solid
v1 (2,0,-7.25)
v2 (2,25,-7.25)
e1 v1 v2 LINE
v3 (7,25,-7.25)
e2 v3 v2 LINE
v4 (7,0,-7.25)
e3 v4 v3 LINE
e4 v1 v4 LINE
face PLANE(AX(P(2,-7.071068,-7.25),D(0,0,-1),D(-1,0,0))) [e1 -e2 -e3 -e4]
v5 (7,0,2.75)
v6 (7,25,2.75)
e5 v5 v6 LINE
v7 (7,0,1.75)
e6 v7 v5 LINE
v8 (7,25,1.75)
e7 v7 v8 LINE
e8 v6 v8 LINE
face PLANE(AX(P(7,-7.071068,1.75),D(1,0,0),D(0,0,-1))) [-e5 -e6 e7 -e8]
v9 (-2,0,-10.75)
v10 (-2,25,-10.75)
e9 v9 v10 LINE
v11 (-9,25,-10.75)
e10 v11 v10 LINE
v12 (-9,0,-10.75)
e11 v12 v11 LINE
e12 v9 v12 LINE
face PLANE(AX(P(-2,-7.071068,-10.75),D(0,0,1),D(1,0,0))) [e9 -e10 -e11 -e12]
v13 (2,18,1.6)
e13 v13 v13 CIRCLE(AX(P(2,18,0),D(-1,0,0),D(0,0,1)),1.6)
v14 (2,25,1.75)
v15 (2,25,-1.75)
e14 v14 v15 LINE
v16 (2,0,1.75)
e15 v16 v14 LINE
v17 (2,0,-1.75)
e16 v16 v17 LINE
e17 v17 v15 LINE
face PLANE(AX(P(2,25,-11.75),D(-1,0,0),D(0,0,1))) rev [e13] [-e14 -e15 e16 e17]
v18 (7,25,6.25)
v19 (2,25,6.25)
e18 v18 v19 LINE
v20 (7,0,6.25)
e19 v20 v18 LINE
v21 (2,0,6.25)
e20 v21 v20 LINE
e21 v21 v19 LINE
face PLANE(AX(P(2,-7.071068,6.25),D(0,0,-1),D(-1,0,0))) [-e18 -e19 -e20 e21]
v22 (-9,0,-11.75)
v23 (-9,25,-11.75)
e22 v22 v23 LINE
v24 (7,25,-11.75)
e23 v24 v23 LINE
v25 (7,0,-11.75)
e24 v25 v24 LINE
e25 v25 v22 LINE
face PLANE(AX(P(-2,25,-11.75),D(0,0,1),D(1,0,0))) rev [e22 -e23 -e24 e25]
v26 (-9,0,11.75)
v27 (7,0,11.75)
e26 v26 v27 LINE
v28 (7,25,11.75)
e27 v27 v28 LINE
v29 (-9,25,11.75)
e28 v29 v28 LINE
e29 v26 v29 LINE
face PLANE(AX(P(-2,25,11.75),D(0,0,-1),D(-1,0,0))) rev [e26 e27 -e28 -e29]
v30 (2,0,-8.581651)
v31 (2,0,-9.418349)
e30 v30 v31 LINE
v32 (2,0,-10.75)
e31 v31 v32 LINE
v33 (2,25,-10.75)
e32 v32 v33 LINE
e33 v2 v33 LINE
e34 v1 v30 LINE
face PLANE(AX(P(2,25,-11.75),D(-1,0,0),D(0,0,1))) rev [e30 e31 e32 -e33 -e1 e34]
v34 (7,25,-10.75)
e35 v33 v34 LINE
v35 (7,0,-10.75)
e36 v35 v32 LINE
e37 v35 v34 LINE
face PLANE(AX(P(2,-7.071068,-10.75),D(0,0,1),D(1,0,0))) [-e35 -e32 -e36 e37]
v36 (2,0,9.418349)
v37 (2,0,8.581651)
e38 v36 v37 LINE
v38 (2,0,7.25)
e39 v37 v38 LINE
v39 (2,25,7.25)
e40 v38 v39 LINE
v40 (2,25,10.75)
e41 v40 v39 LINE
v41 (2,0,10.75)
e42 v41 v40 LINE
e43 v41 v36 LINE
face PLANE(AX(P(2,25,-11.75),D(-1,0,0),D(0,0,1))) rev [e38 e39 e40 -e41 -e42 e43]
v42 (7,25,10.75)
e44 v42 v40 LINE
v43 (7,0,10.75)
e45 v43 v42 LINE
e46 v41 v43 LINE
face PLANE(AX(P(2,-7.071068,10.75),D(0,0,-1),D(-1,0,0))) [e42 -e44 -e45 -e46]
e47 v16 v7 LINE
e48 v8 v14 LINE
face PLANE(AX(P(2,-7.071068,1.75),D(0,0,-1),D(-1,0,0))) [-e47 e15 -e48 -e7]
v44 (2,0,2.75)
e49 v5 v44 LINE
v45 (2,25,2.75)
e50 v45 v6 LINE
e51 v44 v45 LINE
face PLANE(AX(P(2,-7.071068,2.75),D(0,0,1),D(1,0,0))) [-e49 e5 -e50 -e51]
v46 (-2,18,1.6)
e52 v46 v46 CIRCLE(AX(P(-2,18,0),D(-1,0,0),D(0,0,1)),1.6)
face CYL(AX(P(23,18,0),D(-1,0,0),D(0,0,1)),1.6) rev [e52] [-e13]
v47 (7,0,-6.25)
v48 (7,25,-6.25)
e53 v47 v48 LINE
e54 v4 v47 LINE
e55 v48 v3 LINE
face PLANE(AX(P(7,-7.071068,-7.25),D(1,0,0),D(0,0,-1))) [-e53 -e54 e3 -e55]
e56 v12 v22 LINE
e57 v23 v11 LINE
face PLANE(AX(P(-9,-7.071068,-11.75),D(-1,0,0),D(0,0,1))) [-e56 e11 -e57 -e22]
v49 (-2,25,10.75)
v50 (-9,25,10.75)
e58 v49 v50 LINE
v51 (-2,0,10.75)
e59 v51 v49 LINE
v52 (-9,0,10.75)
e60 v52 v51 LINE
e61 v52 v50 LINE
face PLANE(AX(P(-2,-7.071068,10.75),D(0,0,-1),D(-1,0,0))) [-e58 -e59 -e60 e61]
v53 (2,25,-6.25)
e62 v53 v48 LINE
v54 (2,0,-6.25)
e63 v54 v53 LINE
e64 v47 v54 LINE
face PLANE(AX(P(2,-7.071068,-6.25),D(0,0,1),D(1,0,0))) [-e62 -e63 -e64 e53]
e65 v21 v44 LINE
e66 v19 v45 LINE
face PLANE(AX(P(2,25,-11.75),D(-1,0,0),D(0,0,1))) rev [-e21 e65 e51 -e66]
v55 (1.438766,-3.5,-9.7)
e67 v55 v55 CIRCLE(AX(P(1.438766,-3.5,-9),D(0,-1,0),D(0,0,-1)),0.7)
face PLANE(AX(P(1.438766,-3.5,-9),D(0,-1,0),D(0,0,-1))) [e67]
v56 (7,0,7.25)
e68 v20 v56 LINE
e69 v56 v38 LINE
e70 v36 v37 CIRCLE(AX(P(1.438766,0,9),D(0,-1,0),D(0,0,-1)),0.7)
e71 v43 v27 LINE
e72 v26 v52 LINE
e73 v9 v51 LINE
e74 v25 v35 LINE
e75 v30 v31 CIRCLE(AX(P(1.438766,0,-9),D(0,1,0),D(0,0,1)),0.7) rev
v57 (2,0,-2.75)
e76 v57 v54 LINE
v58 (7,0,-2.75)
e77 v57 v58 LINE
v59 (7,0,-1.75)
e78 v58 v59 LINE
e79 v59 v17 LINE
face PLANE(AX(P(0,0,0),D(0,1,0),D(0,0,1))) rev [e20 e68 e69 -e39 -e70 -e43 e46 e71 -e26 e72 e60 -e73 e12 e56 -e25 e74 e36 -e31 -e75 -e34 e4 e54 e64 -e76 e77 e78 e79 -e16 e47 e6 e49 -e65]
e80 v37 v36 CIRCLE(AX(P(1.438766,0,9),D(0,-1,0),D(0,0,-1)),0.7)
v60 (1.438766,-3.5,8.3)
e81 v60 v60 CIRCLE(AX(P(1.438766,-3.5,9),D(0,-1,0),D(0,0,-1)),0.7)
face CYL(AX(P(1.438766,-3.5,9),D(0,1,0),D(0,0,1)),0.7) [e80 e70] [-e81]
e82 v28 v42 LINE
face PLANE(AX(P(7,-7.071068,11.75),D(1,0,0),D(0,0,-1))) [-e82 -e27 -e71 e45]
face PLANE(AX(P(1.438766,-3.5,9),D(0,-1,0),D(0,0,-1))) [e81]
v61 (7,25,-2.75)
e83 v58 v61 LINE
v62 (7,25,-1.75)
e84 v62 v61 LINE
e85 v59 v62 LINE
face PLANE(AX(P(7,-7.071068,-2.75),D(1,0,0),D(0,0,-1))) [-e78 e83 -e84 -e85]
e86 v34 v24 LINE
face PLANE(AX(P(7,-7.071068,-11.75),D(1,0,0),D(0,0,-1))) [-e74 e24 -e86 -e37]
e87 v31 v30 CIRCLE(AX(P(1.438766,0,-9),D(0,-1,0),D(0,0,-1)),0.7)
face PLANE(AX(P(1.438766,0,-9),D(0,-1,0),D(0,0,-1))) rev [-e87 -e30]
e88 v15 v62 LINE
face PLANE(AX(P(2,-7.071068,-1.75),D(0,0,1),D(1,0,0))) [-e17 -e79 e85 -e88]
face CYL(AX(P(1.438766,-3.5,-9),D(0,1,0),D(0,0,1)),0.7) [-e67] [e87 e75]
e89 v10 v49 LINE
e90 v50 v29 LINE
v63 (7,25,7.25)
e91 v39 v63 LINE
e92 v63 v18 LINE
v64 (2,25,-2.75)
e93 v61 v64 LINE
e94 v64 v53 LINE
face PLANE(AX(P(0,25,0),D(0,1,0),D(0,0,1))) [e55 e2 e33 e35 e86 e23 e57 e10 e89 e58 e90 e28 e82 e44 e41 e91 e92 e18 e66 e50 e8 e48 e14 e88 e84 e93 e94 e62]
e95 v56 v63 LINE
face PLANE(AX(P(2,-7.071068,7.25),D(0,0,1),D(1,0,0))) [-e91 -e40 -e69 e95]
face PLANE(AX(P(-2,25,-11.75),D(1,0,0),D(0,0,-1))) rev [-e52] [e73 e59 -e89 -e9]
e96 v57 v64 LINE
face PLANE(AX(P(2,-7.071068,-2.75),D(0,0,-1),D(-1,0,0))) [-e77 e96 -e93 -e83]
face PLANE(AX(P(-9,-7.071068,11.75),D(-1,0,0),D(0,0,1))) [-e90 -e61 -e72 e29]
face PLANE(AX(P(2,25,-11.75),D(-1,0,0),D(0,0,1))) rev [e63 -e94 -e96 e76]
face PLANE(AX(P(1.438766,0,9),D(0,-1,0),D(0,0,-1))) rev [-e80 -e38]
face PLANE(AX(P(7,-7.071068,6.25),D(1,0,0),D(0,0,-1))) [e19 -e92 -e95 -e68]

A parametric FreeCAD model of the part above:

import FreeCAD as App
import Part
import Sketcher
from FreeCAD import Vector
Q = App.Units.Quantity

doc = App.newDocument("Part")
body = doc.addObject("PartDesign::Body", "Body")

sketch1 = body.newObject("Sketcher::SketchObject", "Sketch")
sketch1.AttachmentSupport = (doc.getObject("XZ_Plane"), [""])
sketch1.MapMode = "FlatFace"
sketch1.addGeometry(Part.LineSegment(Vector(-2, -11.75, 0), Vector(-2, 11.75, 0)), False)
sketch1.addGeometry(Part.LineSegment(Vector(-2, 11.75, 0), Vector(2, 11.75, 0)), False)
sketch1.addGeometry(Part.LineSegment(Vector(2, 11.75, 0), Vector(2, -11.75, 0)), False)
sketch1.addGeometry(Part.LineSegment(Vector(2, -11.75, 0), Vector(-2, -11.75, 0)), False)
sketch1.addConstraint(Sketcher.Constraint("Coincident", 0, 2, 1, 1))
sketch1.addConstraint(Sketcher.Constraint("Coincident", 1, 2, 2, 1))
sketch1.addConstraint(Sketcher.Constraint("Coincident", 2, 2, 3, 1))
sketch1.addConstraint(Sketcher.Constraint("Coincident", 3, 2, 0, 1))
sketch1.addConstraint(Sketcher.Constraint("Vertical", 0))
sketch1.addConstraint(Sketcher.Constraint("Horizontal", 1))
sketch1.addConstraint(Sketcher.Constraint("Vertical", 2))
sketch1.addConstraint(Sketcher.Constraint("Horizontal", 3))
sketch1.addConstraint(Sketcher.Constraint("Symmetric", 0, 2, 2, 2, -1, 1))
sketch1.addConstraint(Sketcher.Constraint("DistanceX", 1, 1, 1, 2, Q("4 mm")))
sketch1.addConstraint(Sketcher.Constraint("DistanceY", 0, 1, 0, 2, Q("23.5 mm")))
pad1 = body.newObject("PartDesign::Pad", "Pad")
pad1.Profile = sketch1
pad1.Length = 25
pad1.Reversed = True

sketch2 = body.newObject("Sketcher::SketchObject", "Sketch001")
sketch2.AttachmentSupport = (doc.getObject("XZ_Plane"), [""])
sketch2.MapMode = "FlatFace"
sketch2.AttachmentOffset = App.Placement(Vector(0, 0, -25), App.Rotation())
sketch2.addGeometry(Part.LineSegment(Vector(2, 10.75, 0), Vector(2, 11.75, 0)), False)
sketch2.addGeometry(Part.LineSegment(Vector(2, 11.75, 0), Vector(7, 11.75, 0)), False)
sketch2.addGeometry(Part.LineSegment(Vector(7, 11.75, 0), Vector(7, 10.75, 0)), False)
sketch2.addGeometry(Part.LineSegment(Vector(7, 10.75, 0), Vector(2, 10.75, 0)), False)
sketch2.addGeometry(Part.LineSegment(Vector(-9, 10.75, 0), Vector(-9, 11.75, 0)), False)
sketch2.addGeometry(Part.LineSegment(Vector(-9, 11.75, 0), Vector(-2, 11.75, 0)), False)
sketch2.addGeometry(Part.LineSegment(Vector(-2, 11.75, 0), Vector(-2, 10.75, 0)), False)
sketch2.addGeometry(Part.LineSegment(Vector(-2, 10.75, 0), Vector(-9, 10.75, 0)), False)
sketch2.addGeometry(Part.LineSegment(Vector(-9, -11.75, 0), Vector(-9, -10.75, 0)), False)
sketch2.addGeometry(Part.LineSegment(Vector(-9, -10.75, 0), Vector(-2, -10.75, 0)), False)
sketch2.addGeometry(Part.LineSegment(Vector(-2, -10.75, 0), Vector(-2, -11.75, 0)), False)
sketch2.addGeometry(Part.LineSegment(Vector(-2, -11.75, 0), Vector(-9, -11.75, 0)), False)
sketch2.addGeometry(Part.LineSegment(Vector(2, -11.75, 0), Vector(2, -10.75, 0)), False)
sketch2.addGeometry(Part.LineSegment(Vector(2, -10.75, 0), Vector(7, -10.75, 0)), False)
sketch2.addGeometry(Part.LineSegment(Vector(7, -10.75, 0), Vector(7, -11.75, 0)), False)
sketch2.addGeometry(Part.LineSegment(Vector(7, -11.75, 0), Vector(2, -11.75, 0)), False)
sketch2.addGeometry(Part.LineSegment(Vector(2, -7.25, 0), Vector(2, -6.25, 0)), False)
sketch2.addGeometry(Part.LineSegment(Vector(2, -6.25, 0), Vector(7, -6.25, 0)), False)
sketch2.addGeometry(Part.LineSegment(Vector(7, -6.25, 0), Vector(7, -7.25, 0)), False)
sketch2.addGeometry(Part.LineSegment(Vector(7, -7.25, 0), Vector(2, -7.25, 0)), False)
sketch2.addGeometry(Part.LineSegment(Vector(2, -2.75, 0), Vector(2, -1.75, 0)), False)
sketch2.addGeometry(Part.LineSegment(Vector(2, -1.75, 0), Vector(7, -1.75, 0)), False)
sketch2.addGeometry(Part.LineSegment(Vector(7, -1.75, 0), Vector(7, -2.75, 0)), False)
sketch2.addGeometry(Part.LineSegment(Vector(7, -2.75, 0), Vector(2, -2.75, 0)), False)
sketch2.addGeometry(Part.LineSegment(Vector(2, 1.75, 0), Vector(2, 2.75, 0)), False)
sketch2.addGeometry(Part.LineSegment(Vector(2, 2.75, 0), Vector(7, 2.75, 0)), False)
sketch2.addGeometry(Part.LineSegment(Vector(7, 2.75, 0), Vector(7, 1.75, 0)), False)
sketch2.addGeometry(Part.LineSegment(Vector(7, 1.75, 0), Vector(2, 1.75, 0)), False)
sketch2.addGeometry(Part.LineSegment(Vector(2, 6.25, 0), Vector(2, 7.25, 0)), False)
sketch2.addGeometry(Part.LineSegment(Vector(2, 7.25, 0), Vector(7, 7.25, 0)), False)
sketch2.addGeometry(Part.LineSegment(Vector(7, 7.25, 0), Vector(7, 6.25, 0)), False)
sketch2.addGeometry(Part.LineSegment(Vector(7, 6.25, 0), Vector(2, 6.25, 0)), False)
sketch2.addConstraint(Sketcher.Constraint("Coincident", 0, 2, 1, 1))
sketch2.addConstraint(Sketcher.Constraint("Coincident", 1, 2, 2, 1))
sketch2.addConstraint(Sketcher.Constraint("Coincident", 2, 2, 3, 1))
sketch2.addConstraint(Sketcher.Constraint("Coincident", 3, 2, 0, 1))
sketch2.addConstraint(Sketcher.Constraint("Coincident", 4, 2, 5, 1))
sketch2.addConstraint(Sketcher.Constraint("Coincident", 5, 2, 6, 1))
sketch2.addConstraint(Sketcher.Constraint("Coincident", 6, 2, 7, 1))
sketch2.addConstraint(Sketcher.Constraint("Coincident", 7, 2, 4, 1))
sketch2.addConstraint(Sketcher.Constraint("Coincident", 8, 2, 9, 1))
sketch2.addConstraint(Sketcher.Constraint("Coincident", 9, 2, 10, 1))
sketch2.addConstraint(Sketcher.Constraint("Coincident", 10, 2, 11, 1))
sketch2.addConstraint(Sketcher.Constraint("Coincident", 11, 2, 8, 1))
sketch2.addConstraint(Sketcher.Constraint("Coincident", 12, 2, 13, 1))
sketch2.addConstraint(Sketcher.Constraint("Coincident", 13, 2, 14, 1))
sketch2.addConstraint(Sketcher.Constraint("Coincident", 14, 2, 15, 1))
sketch2.addConstraint(Sketcher.Constraint("Coincident", 15, 2, 12, 1))
sketch2.addConstraint(Sketcher.Constraint("Coincident", 16, 2, 17, 1))
sketch2.addConstraint(Sketcher.Constraint("Coincident", 17, 2, 18, 1))
sketch2.addConstraint(Sketcher.Constraint("Coincident", 18, 2, 19, 1))
sketch2.addConstraint(Sketcher.Constraint("Coincident", 19, 2, 16, 1))
sketch2.addConstraint(Sketcher.Constraint("Coincident", 20, 2, 21, 1))
sketch2.addConstraint(Sketcher.Constraint("Coincident", 21, 2, 22, 1))
sketch2.addConstraint(Sketcher.Constraint("Coincident", 22, 2, 23, 1))
sketch2.addConstraint(Sketcher.Constraint("Coincident", 23, 2, 20, 1))
sketch2.addConstraint(Sketcher.Constraint("Coincident", 24, 2, 25, 1))
sketch2.addConstraint(Sketcher.Constraint("Coincident", 25, 2, 26, 1))
sketch2.addConstraint(Sketcher.Constraint("Coincident", 26, 2, 27, 1))
sketch2.addConstraint(Sketcher.Constraint("Coincident", 27, 2, 24, 1))
sketch2.addConstraint(Sketcher.Constraint("Coincident", 28, 2, 29, 1))
sketch2.addConstraint(Sketcher.Constraint("Coincident", 29, 2, 30, 1))
sketch2.addConstraint(Sketcher.Constraint("Coincident", 30, 2, 31, 1))
sketch2.addConstraint(Sketcher.Constraint("Coincident", 31, 2, 28, 1))
sketch2.addConstraint(Sketcher.Constraint("Vertical", 0))
sketch2.addConstraint(Sketcher.Constraint("Horizontal", 1))
sketch2.addConstraint(Sketcher.Constraint("Vertical", 2))
sketch2.addConstraint(Sketcher.Constraint("Horizontal", 3))
sketch2.addConstraint(Sketcher.Constraint("Vertical", 4))
sketch2.addConstraint(Sketcher.Constraint("Horizontal", 5))
sketch2.addConstraint(Sketcher.Constraint("Vertical", 6))
sketch2.addConstraint(Sketcher.Constraint("Horizontal", 7))
sketch2.addConstraint(Sketcher.Constraint("Vertical", 8))
sketch2.addConstraint(Sketcher.Constraint("Horizontal", 9))
sketch2.addConstraint(Sketcher.Constraint("Vertical", 10))
sketch2.addConstraint(Sketcher.Constraint("Horizontal", 11))
sketch2.addConstraint(Sketcher.Constraint("Vertical", 12))
sketch2.addConstraint(Sketcher.Constraint("Horizontal", 13))
sketch2.addConstraint(Sketcher.Constraint("Vertical", 14))
sketch2.addConstraint(Sketcher.Constraint("Horizontal", 15))
sketch2.addConstraint(Sketcher.Constraint("Vertical", 16))
sketch2.addConstraint(Sketcher.Constraint("Horizontal", 17))
sketch2.addConstraint(Sketcher.Constraint("Vertical", 18))
sketch2.addConstraint(Sketcher.Constraint("Horizontal", 19))
sketch2.addConstraint(Sketcher.Constraint("Vertical", 20))
sketch2.addConstraint(Sketcher.Constraint("Horizontal", 21))
sketch2.addConstraint(Sketcher.Constraint("Vertical", 22))
sketch2.addConstraint(Sketcher.Constraint("Horizontal", 23))
sketch2.addConstraint(Sketcher.Constraint("Vertical", 24))
sketch2.addConstraint(Sketcher.Constraint("Horizontal", 25))
sketch2.addConstraint(Sketcher.Constraint("Vertical", 26))
sketch2.addConstraint(Sketcher.Constraint("Horizontal", 27))
sketch2.addConstraint(Sketcher.Constraint("Vertical", 28))
sketch2.addConstraint(Sketcher.Constraint("Horizontal", 29))
sketch2.addConstraint(Sketcher.Constraint("Vertical", 30))
sketch2.addConstraint(Sketcher.Constraint("Horizontal", 31))
sketch2.addConstraint(Sketcher.Constraint("Symmetric", 3, 2, 9, 2, -1, 1))
sketch2.addConstraint(Sketcher.Constraint("Symmetric", 6, 2, 12, 2, -1, 1))
sketch2.addConstraint(Sketcher.Constraint("Symmetric", 0, 2, 5, 2, -2))
sketch2.addConstraint(Sketcher.Constraint("Symmetric", 7, 2, 8, 2, -1))
sketch2.addConstraint(Sketcher.Constraint("Symmetric", 1, 2, 14, 2, -1))
sketch2.addConstraint(Sketcher.Constraint("Symmetric", 23, 2, 24, 2, -1))
sketch2.addConstraint(Sketcher.Constraint("Symmetric", 21, 2, 26, 2, -1))
sketch2.addConstraint(Sketcher.Constraint("Symmetric", 19, 2, 28, 2, -1))
sketch2.addConstraint(Sketcher.Constraint("Symmetric", 17, 2, 30, 2, -1))
sketch2.addConstraint(Sketcher.Constraint("Horizontal", 11, 2, 14, 2))
sketch2.addConstraint(Sketcher.Constraint("Vertical", 15, 2, 16, 2))
sketch2.addConstraint(Sketcher.Constraint("Vertical", 14, 2, 17, 2))
sketch2.addConstraint(Sketcher.Constraint("Vertical", 19, 2, 20, 2))
sketch2.addConstraint(Sketcher.Constraint("Vertical", 18, 2, 21, 2))
sketch2.addConstraint(Sketcher.Constraint("Equal", 14, 16))
sketch2.addConstraint(Sketcher.Constraint("Equal", 18, 20))
sketch2.addConstraint(Sketcher.Constraint("DistanceX", 1, 1, 1, 2, Q("5 mm")))
sketch2.addConstraint(Sketcher.Constraint("DistanceX", 5, 1, 5, 2, Q("7 mm")))
sketch2.addConstraint(Sketcher.Constraint("DistanceY", 0, 1, 0, 2, Q("1 mm")))
sketch2.addConstraint(Sketcher.Constraint("DistanceX", -1, 1, 0, 2, Q("2 mm")))
sketch2.addConstraint(Sketcher.Constraint("DistanceY", 12, 2, 20, 2, Q("9 mm")))
sketch2.addConstraint(Sketcher.Constraint("DistanceY", 8, 2, 7, 2, Q("21.5 mm")))
sketch2.addConstraint(Sketcher.Constraint("DistanceY", 12, 2, 16, 2, Q("4.5 mm")))
pad2 = body.newObject("PartDesign::Pad", "Pad001")
pad2.Profile = sketch2
pad2.Length = 25

sketch3 = body.newObject("Sketcher::SketchObject", "Sketch002")
sketch3.AttachmentSupport = (doc.getObject("YZ_Plane"), [""])
sketch3.MapMode = "FlatFace"
sketch3.AttachmentOffset = App.Placement(Vector(0, 0, -2), App.Rotation())
sketch3.addGeometry(Part.Circle(Vector(18, 0, 0), Vector(0, 0, 1), 1.6), False)
sketch3.addConstraint(Sketcher.Constraint("PointOnObject", 0, 3, -1))
sketch3.addConstraint(Sketcher.Constraint("Diameter", 0, Q("3.2 mm")))
sketch3.addConstraint(Sketcher.Constraint("DistanceX", -1, 1, 0, 3, Q("18 mm")))
pocket1 = body.newObject("PartDesign::Pocket", "Pocket")
pocket1.Profile = sketch3
pocket1.Length = 25
pocket1.Reversed = True

sketch4 = body.newObject("Sketcher::SketchObject", "Sketch003")
sketch4.AttachmentSupport = (doc.getObject("XZ_Plane"), [""])
sketch4.MapMode = "FlatFace"
sketch4.addGeometry(Part.Circle(Vector(1.438766, 9, 0), Vector(0, 0, 1), 0.7), False)
sketch4.addGeometry(Part.Circle(Vector(1.438766, -9, 0), Vector(0, 0, 1), 0.7), False)
sketch4.addConstraint(Sketcher.Constraint("Equal", 0, 1))
sketch4.addConstraint(Sketcher.Constraint("Symmetric", 0, 3, 1, 3, -1))
sketch4.addConstraint(Sketcher.Constraint("Diameter", 0, Q("1.4 mm")))
sketch4.addConstraint(Sketcher.Constraint("DistanceY", -1, 1, 0, 3, Q("9 mm")))
sketch4.addConstraint(Sketcher.Constraint("DistanceX", -1, 1, 0, 3, Q("1.438766 mm")))
pad3 = body.newObject("PartDesign::Pad", "Pad002")
pad3.Profile = sketch4
pad3.Length = 3.5

doc.recompute()
